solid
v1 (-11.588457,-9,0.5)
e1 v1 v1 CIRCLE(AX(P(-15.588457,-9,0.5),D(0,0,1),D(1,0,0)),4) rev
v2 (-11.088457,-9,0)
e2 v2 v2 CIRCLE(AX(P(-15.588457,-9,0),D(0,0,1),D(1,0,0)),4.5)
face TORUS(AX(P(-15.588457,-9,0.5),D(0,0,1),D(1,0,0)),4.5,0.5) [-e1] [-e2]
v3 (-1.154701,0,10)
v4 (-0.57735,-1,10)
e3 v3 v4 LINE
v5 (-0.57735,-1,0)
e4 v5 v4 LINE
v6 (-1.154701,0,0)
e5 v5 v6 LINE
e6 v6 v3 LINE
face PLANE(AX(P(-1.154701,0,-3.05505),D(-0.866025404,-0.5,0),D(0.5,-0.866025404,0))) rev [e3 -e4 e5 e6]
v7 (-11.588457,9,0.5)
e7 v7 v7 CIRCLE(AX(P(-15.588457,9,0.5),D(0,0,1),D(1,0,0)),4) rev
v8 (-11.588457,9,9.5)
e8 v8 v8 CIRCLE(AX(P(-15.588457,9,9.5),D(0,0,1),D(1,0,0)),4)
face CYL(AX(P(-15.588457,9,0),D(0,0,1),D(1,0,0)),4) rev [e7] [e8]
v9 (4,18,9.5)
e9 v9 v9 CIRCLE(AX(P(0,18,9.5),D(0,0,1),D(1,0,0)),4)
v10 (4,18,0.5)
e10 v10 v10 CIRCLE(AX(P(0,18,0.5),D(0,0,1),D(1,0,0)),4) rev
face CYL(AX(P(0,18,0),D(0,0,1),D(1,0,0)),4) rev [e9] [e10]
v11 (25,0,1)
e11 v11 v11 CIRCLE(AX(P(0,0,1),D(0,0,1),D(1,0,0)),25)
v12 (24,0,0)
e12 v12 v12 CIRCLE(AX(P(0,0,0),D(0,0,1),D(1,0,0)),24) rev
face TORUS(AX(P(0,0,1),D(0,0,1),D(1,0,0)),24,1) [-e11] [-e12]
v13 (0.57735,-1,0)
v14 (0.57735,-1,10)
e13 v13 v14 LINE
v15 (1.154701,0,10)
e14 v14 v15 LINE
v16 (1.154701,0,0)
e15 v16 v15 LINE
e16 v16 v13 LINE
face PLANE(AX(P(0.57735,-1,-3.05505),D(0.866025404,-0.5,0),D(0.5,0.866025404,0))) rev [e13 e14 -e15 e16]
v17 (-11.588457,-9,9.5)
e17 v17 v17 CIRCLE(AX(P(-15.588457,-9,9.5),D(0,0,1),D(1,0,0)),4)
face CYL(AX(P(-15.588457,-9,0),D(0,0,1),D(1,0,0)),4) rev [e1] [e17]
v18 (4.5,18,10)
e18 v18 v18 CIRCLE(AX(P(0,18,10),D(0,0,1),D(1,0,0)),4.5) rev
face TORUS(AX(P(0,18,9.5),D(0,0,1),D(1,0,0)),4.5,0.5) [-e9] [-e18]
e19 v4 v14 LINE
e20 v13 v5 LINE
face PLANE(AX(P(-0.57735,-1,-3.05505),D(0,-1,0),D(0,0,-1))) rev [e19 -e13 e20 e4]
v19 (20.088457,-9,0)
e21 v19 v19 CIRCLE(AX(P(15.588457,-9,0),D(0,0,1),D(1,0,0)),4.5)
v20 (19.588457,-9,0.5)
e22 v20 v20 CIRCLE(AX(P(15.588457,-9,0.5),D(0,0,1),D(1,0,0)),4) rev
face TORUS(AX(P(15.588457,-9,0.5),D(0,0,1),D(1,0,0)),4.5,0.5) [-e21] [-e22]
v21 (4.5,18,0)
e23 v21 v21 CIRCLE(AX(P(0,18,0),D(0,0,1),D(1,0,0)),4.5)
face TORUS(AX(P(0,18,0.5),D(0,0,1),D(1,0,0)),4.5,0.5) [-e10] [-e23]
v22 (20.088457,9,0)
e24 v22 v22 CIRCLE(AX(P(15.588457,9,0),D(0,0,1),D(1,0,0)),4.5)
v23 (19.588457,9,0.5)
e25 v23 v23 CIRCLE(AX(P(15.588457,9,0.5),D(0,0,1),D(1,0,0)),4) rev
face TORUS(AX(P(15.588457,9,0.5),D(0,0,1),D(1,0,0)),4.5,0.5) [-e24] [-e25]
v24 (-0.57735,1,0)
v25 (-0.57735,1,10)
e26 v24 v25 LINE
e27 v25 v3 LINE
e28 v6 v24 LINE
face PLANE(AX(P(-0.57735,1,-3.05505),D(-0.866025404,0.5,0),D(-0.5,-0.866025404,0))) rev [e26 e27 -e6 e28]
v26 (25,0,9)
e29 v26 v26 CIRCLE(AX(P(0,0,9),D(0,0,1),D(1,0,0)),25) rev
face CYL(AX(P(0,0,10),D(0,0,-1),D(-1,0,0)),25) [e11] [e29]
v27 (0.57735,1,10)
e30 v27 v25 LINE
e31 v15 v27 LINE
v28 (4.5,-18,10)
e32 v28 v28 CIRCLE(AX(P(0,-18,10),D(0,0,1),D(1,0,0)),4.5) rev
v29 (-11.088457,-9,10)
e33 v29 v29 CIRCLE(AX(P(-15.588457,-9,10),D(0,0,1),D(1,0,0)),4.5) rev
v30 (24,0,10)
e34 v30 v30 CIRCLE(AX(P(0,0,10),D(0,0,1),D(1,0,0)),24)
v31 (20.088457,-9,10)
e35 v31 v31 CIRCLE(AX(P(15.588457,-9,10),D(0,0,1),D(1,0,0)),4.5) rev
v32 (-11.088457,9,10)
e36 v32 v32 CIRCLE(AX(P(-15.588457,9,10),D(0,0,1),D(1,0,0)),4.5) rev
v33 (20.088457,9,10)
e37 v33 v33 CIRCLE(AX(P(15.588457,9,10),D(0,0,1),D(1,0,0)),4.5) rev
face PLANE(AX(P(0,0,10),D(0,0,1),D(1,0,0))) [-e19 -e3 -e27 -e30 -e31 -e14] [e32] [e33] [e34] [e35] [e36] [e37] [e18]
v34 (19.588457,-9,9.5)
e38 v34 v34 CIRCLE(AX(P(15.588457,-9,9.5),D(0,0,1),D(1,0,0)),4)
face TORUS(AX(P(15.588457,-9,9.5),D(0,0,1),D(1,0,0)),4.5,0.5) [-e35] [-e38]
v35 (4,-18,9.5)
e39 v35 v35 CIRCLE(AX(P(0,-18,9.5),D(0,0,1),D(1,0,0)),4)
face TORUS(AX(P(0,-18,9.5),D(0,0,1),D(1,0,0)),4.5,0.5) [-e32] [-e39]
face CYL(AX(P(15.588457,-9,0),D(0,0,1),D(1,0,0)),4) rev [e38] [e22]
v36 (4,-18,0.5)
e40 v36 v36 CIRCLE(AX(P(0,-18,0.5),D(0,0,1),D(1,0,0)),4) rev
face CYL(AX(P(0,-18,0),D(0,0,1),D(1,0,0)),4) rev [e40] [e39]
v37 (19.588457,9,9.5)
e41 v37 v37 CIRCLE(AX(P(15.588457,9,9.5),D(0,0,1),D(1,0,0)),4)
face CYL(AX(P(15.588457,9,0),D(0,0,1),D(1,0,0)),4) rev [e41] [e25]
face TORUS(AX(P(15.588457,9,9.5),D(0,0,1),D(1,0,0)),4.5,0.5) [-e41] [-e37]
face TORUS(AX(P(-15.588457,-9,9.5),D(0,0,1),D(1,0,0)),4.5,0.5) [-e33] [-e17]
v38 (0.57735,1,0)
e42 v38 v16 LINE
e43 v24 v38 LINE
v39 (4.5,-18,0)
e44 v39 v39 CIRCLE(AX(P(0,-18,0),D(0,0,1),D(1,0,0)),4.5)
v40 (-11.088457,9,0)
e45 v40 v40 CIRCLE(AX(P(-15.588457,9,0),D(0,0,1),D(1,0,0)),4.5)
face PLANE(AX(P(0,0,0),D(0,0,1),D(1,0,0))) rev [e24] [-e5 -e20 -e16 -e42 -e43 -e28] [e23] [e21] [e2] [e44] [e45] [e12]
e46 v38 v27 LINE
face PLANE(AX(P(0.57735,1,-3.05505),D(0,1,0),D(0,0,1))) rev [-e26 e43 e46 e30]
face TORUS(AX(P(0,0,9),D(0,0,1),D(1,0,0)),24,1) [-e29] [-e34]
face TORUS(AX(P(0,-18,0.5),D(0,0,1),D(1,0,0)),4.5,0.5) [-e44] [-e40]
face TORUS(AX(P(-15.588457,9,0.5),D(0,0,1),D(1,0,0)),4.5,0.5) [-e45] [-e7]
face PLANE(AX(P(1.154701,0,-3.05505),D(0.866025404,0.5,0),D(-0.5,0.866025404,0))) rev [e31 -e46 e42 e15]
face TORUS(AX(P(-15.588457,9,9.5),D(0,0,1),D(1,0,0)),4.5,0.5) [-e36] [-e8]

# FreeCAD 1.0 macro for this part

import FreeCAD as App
import Part
import Sketcher

V = App.Vector
Q = App.Units.Quantity


def edges_at(feature, points):
    """Names of the edges that pass closest to the given points."""
    edges = feature.Shape.Edges
    near = lambda p: min(range(len(edges)), key=lambda i: edges[i].distToShape(Part.Vertex(*p))[0])
    return sorted({f"Edge{near(p) + 1}" for p in points})


def add_polygon(sketch, points):
    """Adds a closed chain of lines whose ends are joined by coincident constraints."""
    first, n = sketch.GeometryCount, len(points)
    for a, b in zip(points, points[1:] + points[:1]):
        sketch.addGeometry(Part.LineSegment(App.Vector(*a, 0), App.Vector(*b, 0)), False)
    for i in range(n):
        sketch.addConstraint(Sketcher.Constraint("Coincident", first + i, 2, first + (i + 1) % n, 1))

doc = App.newDocument("Part")
body = doc.addObject("PartDesign::Body", "Body")

# Sketch on XY plane
sketch1 = doc.addObject("Sketcher::SketchObject", "Sketch")
body.addObject(sketch1)
sketch1.AttachmentSupport = (doc.XY_Plane, [""])
sketch1.MapMode = "FlatFace"
sketch1.addGeometry(Part.Circle(V(0, 0, 0), V(0, 0, 1), 25), False)
sketch1.addConstraint([
    Sketcher.Constraint("Coincident", 0, 3, -1, 1),
    Sketcher.Constraint("Diameter", 0, 50.0),
])
pad1 = doc.addObject("PartDesign::Pad", "Pad")
body.addObject(pad1)
pad1.Profile = sketch1
pad1.Length = 10

# Sketch on XY plane
sketch2 = doc.addObject("Sketcher::SketchObject", "Sketch001")
body.addObject(sketch2)
sketch2.AttachmentSupport = (doc.XY_Plane, [""])
sketch2.MapMode = "FlatFace"
sketch2.AttachmentOffset = App.Placement(V(0, 0, 10), App.Rotation())
sketch2.addGeometry(Part.Circle(V(0, 18, 0), V(0, 0, 1), 4), False)
sketch2.addConstraint([
    Sketcher.Constraint("PointOnObject", 0, 3, -2),
    Sketcher.Constraint("Diameter", 0, 8.0),
    Sketcher.Constraint("DistanceY", -1, 1, 0, 3, 18.0),
])
pocket1 = doc.addObject("PartDesign::Pocket", "Pocket")
body.addObject(pocket1)
pocket1.Profile = sketch2
pocket1.Type = "ThroughAll"
doc.recompute()

polarpattern = doc.addObject("PartDesign::PolarPattern", "PolarPattern")
body.addObject(polarpattern)
polarpattern.Originals = [pocket1]
polarpattern.Axis = (doc.Z_Axis, [""])
polarpattern.Angle = 360
polarpattern.Occurrences = 6
body.Tip = polarpattern
doc.recompute()

fillet = doc.addObject("PartDesign::Fillet", "Fillet")
body.addObject(fillet)
fillet.Base = (polarpattern, edges_at(polarpattern, [(-25, 0, 0), (-25, 0, 10)]))
fillet.Radius = 1
doc.recompute()

fillet2 = doc.addObject("PartDesign::Fillet", "Fillet001")
body.addObject(fillet2)
fillet2.Base = (fillet, edges_at(fillet, [
    (13.588, 12.464, 0),
    (13.588, 12.464, 10),
    (17.588, -5.536, 0),
    (17.588, -5.536, 10),
    (4, -18, 0),
    (4, -18, 10),
    (-13.588, -12.464, 0),
    (-13.588, -12.464, 10),
    (-17.588, 5.536, 0),
    (-17.588, 5.536, 10),
    (-4, 18, 0),
    (-4, 18, 10),
]))
fillet2.Radius = 0.5

# Sketch on XY plane
sketch3 = doc.addObject("Sketcher::SketchObject", "Sketch002")
body.addObject(sketch3)
sketch3.AttachmentSupport = (doc.XY_Plane, [""])
sketch3.MapMode = "FlatFace"
sketch3.AttachmentOffset = App.Placement(V(0, 0, 10), App.Rotation())
add_polygon(sketch3, [(1.2, 0), (0.6, 1), (-0.6, 1), (-1.2, 0), (-0.6, -1), (0.6, -1)])  # lines 0-5
sketch3.addConstraint([
    Sketcher.Constraint("Horizontal", 1),
    Sketcher.Constraint("Horizontal", 4),
    Sketcher.Constraint("Symmetric", 0, 2, 3, 2, -1, 1),
    Sketcher.Constraint("Symmetric", 2, 2, 5, 2, -1, 1),
    Sketcher.Constraint("PointOnObject", 2, 2, -1),
    Sketcher.Constraint("Parallel", 2, 5),
    Sketcher.Constraint("Vertical", 1, 2, 3, 2),
    Sketcher.Constraint("Angle", 0, Q("120 deg")),
    Sketcher.Constraint("DistanceY", -1, 1, 0, 2, 1.0),
    Sketcher.Constraint("DistanceX", 1, 2, 1, 1, 1.154701),
])
pocket2 = doc.addObject("PartDesign::Pocket", "Pocket001")
body.addObject(pocket2)
pocket2.Profile = sketch3
pocket2.Length = 10

doc.recompute()
